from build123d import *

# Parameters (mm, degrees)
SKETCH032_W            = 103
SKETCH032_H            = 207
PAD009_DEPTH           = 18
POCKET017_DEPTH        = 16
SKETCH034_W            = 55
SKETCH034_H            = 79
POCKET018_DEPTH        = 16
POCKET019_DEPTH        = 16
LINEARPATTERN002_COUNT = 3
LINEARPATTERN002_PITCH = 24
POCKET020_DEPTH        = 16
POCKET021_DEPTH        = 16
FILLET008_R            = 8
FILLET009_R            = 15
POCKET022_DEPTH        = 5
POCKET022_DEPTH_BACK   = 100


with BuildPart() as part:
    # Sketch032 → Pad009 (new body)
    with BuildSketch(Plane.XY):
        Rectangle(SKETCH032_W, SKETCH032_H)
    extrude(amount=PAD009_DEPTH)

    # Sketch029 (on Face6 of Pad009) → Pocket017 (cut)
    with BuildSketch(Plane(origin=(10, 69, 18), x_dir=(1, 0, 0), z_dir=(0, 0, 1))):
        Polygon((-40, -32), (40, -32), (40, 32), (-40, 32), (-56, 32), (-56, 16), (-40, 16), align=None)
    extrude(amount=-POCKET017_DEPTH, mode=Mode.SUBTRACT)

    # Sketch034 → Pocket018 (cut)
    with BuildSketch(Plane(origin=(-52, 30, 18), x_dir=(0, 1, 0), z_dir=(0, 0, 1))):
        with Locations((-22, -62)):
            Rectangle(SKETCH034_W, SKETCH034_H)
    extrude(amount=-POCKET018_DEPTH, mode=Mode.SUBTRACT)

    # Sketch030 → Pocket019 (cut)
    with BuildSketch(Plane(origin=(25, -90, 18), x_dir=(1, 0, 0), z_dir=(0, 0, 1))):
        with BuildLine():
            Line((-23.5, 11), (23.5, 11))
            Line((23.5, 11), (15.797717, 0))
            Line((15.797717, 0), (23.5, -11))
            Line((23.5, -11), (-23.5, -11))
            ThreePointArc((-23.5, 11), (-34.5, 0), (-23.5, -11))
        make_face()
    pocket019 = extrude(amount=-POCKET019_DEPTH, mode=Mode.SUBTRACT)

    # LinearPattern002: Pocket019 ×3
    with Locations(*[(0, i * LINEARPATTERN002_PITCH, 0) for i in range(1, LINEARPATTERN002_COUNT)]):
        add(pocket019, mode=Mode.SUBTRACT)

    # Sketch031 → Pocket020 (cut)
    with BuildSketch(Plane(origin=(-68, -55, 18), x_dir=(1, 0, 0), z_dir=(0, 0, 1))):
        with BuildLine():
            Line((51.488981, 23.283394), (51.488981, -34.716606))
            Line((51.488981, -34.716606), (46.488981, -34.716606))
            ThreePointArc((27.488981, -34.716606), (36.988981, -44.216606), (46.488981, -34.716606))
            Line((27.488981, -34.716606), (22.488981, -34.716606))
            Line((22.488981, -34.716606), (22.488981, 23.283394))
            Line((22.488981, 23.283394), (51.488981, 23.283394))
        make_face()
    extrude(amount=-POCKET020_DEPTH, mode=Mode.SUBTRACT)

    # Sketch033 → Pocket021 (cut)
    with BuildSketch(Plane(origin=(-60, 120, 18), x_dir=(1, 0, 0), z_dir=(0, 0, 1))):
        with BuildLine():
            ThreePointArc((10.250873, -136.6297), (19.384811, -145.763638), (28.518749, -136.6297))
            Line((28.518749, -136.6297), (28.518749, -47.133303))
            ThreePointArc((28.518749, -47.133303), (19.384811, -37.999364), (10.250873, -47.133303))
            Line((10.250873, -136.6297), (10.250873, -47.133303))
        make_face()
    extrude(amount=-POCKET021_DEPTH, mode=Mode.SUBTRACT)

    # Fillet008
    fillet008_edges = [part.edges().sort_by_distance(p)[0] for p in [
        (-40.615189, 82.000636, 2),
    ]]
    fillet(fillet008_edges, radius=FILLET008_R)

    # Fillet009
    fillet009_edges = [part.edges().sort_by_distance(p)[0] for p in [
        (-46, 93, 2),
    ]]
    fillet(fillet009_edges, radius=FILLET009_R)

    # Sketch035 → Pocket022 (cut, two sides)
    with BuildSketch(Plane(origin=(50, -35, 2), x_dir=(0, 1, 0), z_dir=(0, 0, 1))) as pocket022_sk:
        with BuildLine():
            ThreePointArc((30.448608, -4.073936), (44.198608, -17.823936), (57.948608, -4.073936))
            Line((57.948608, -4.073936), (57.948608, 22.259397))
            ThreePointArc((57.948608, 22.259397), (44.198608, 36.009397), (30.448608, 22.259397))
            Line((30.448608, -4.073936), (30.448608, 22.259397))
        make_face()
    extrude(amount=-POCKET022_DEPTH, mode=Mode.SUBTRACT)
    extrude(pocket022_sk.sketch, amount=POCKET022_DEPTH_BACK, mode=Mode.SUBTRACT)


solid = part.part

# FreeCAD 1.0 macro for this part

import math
import FreeCAD as App
import Part
import Sketcher
Q = App.Units.Quantity


def edges_at(feature, points):
    """Names of the edges that pass closest to the given points."""
    edges = feature.Shape.Edges
    near = lambda p: min(range(len(edges)), key=lambda i: edges[i].distToShape(Part.Vertex(*p))[0])
    return sorted({f"Edge{near(p) + 1}" for p in points})


def add_polygon(sketch, points):
    """Adds a closed chain of lines whose ends are joined by coincident constraints."""
    first, n = sketch.GeometryCount, len(points)
    for a, b in zip(points, points[1:] + points[:1]):
        sketch.addGeometry(Part.LineSegment(App.Vector(*a, 0), App.Vector(*b, 0)), False)
    for i in range(n):
        sketch.addConstraint(Sketcher.Constraint("Coincident", first + i, 2, first + (i + 1) % n, 1))

doc = App.newDocument("Part")
params = doc.addObject("Spreadsheet::Sheet", "Params")
for row, (alias, value) in enumerate([
    ("sketch1_width", "103 mm"),
    ("sketch1_height", "207 mm"),
    ("pad1_length", "18 mm"),
    ("sketch2_width", "80 mm"),
    ("sketch2_width2", "96 mm"),
    ("sketch2_height", "64 mm"),
    ("pocket1_length", "16 mm"),
    ("sketch3_width", "79 mm"),
    ("sketch3_height", "55 mm"),
    ("pocket2_length", "16 mm"),
    ("sketch4_radius", "11 mm"),
    ("sketch4_width", "47 mm"),
    ("pocket3_length", "16 mm"),
    ("linearpattern_pitch", "24 mm"),
    ("sketch5_radius", "9.5 mm"),
    ("sketch5_width", "29 mm"),
    ("sketch5_height", "58 mm"),
    ("pocket4_length", "16 mm"),
    ("pocket5_length", "16 mm"),
    ("fillet_radius", "8 mm"),
    ("fillet2_radius", "15 mm"),
    ("sketch7_radius", "13.75 mm"),
], start=1):
    params.set(f"A{row}", alias)
    params.set(f"B{row}", "=" + value)
    params.setAlias(f"B{row}", alias)

body = doc.addObject("PartDesign::Body", "Body")

# Sketch on XY plane
sketch1 = body.newObject("Sketcher::SketchObject", "Sketch")
sketch1.AttachmentSupport = (doc.getObject("XY_Plane"), [""])
sketch1.MapMode = "FlatFace"
add_polygon(sketch1, [(-52, 104), (-52, -104), (52, -104), (52, 104)])  # lines 0-3
sketch1.addConstraint([
    Sketcher.Constraint("Vertical", 0),
    Sketcher.Constraint("Horizontal", 1),
    Sketcher.Constraint("Vertical", 2),
    Sketcher.Constraint("Horizontal", 3),
    Sketcher.Constraint("Symmetric", 0, 2, 2, 2, -1, 1),
    Sketcher.Constraint("DistanceX", 1, 1, 1, 2, Q("103 mm")),
    Sketcher.Constraint("DistanceY", 0, 2, 0, 1, Q("207 mm")),
])
sketch1.setExpression("Constraints[9]", "Params.sketch1_width")
sketch1.setExpression("Constraints[10]", "Params.sketch1_height")
pad1 = body.newObject("PartDesign::Pad", "Pad")
pad1.Profile = sketch1
pad1.setExpression("Length", "Params.pad1_length")

# Sketch on XY plane
sketch2 = body.newObject("Sketcher::SketchObject", "Sketch001")
sketch2.AttachmentSupport = (doc.getObject("XY_Plane"), [""])
sketch2.MapMode = "FlatFace"
sketch2.AttachmentOffset = App.Placement(App.Vector(0, 0, 18), App.Rotation())
add_polygon(sketch2, [(-30, 37), (50, 37), (50, 101), (-46, 101), (-46, 85), (-30, 85)])  # lines 0-5
sketch2.addConstraint([
    Sketcher.Constraint("Horizontal", 0),
    Sketcher.Constraint("Vertical", 1),
    Sketcher.Constraint("Horizontal", 2),
    Sketcher.Constraint("Vertical", 3),
    Sketcher.Constraint("Horizontal", 4),
    Sketcher.Constraint("Vertical", 5),
    Sketcher.Constraint("Equal", 4, 3),
    Sketcher.Constraint("DistanceX", 0, 1, 0, 2, Q("80 mm")),
    Sketcher.Constraint("DistanceX", 2, 2, 2, 1, Q("96 mm")),
    Sketcher.Constraint("DistanceY", 1, 1, 1, 2, Q("64 mm")),
    Sketcher.Constraint("DistanceX", -1, 1, 0, 2, Q("50 mm")),
    Sketcher.Constraint("DistanceY", -1, 1, 0, 2, Q("37 mm")),
])
sketch2.setExpression("Constraints[13]", "Params.sketch2_width")
sketch2.setExpression("Constraints[14]", "Params.sketch2_width2")
sketch2.setExpression("Constraints[15]", "Params.sketch2_height")
pocket1 = body.newObject("PartDesign::Pocket", "Pocket")
pocket1.Profile = sketch2
pocket1.setExpression("Length", "Params.pocket1_length")

# Sketch on XY plane
sketch3 = body.newObject("Sketcher::SketchObject", "Sketch002")
sketch3.AttachmentSupport = (doc.getObject("XY_Plane"), [""])
sketch3.MapMode = "FlatFace"
sketch3.AttachmentOffset = App.Placement(App.Vector(0, 0, 18), App.Rotation())
add_polygon(sketch3, [(-30, -20), (50, -20), (50, 36), (-30, 36)])  # lines 0-3
sketch3.addConstraint([
    Sketcher.Constraint("Horizontal", 0),
    Sketcher.Constraint("Vertical", 1),
    Sketcher.Constraint("Horizontal", 2),
    Sketcher.Constraint("Vertical", 3),
    Sketcher.Constraint("DistanceX", 0, 1, 0, 2, Q("79 mm")),
    Sketcher.Constraint("DistanceY", 1, 1, 1, 2, Q("55 mm")),
    Sketcher.Constraint("DistanceX", -1, 1, 0, 2, Q("49.5 mm")),
    Sketcher.Constraint("DistanceY", 0, 2, -1, 1, Q("19.5 mm")),
])
sketch3.setExpression("Constraints[8]", "Params.sketch3_width")
sketch3.setExpression("Constraints[9]", "Params.sketch3_height")
pocket2 = body.newObject("PartDesign::Pocket", "Pocket001")
pocket2.Profile = sketch3
pocket2.setExpression("Length", "Params.pocket2_length")

# Sketch on XY plane
sketch4 = body.newObject("Sketcher::SketchObject", "Sketch003")
sketch4.AttachmentSupport = (doc.getObject("XY_Plane"), [""])
sketch4.MapMode = "FlatFace"
sketch4.AttachmentOffset = App.Placement(App.Vector(0, 0, 18), App.Rotation())
sketch4.addGeometry([
    Part.LineSegment(App.Vector(48, -79, 0), App.Vector(2, -79, 0)),  # 0
    Part.ArcOfCircle(Part.Circle(App.Vector(2, -90, 0), App.Vector(0, 0, 1), 11), math.radians(90), math.radians(270)),  # 1
    Part.LineSegment(App.Vector(2, -101, 0), App.Vector(48, -101, 0)),  # 2
    Part.LineSegment(App.Vector(48, -101, 0), App.Vector(41, -90, 0)),  # 3
    Part.LineSegment(App.Vector(41, -90, 0), App.Vector(48, -79, 0)),  # 4
], False)
sketch4.addConstraint([
    Sketcher.Constraint("Tangent", 0, 2, 1, 1),
    Sketcher.Constraint("Tangent", 1, 2, 2, 1),
    Sketcher.Constraint("Coincident", 2, 2, 3, 1),
    Sketcher.Constraint("Coincident", 3, 2, 4, 1),
    Sketcher.Constraint("Coincident", 4, 2, 0, 1),
    Sketcher.Constraint("Horizontal", 0),
    Sketcher.Constraint("Horizontal", 2),
    Sketcher.Constraint("Horizontal", 1, 3, 3, 2),
    Sketcher.Constraint("Vertical", 2, 2, 4, 2),
    Sketcher.Constraint("Radius", 1, Q("11 mm")),
    Sketcher.Constraint("DistanceX", 0, 2, 0, 1, Q("47 mm")),
    Sketcher.Constraint("Angle", 3, Q("125 deg")),
    Sketcher.Constraint("DistanceY", 1, 3, -1, 1, Q("90 mm")),
    Sketcher.Constraint("DistanceX", -1, 1, 1, 3, Q("1.5 mm")),
])
sketch4.setExpression("Constraints[9]", "Params.sketch4_radius")
sketch4.setExpression("Constraints[10]", "Params.sketch4_width")
pocket3 = body.newObject("PartDesign::Pocket", "Pocket002")
pocket3.Profile = sketch4
pocket3.setExpression("Length", "Params.pocket3_length")
doc.recompute()

linearpattern = body.newObject("PartDesign::LinearPattern", "LinearPattern")
linearpattern.Originals = [pocket3]
linearpattern.Direction = (doc.getObject("Y_Axis"), [""])
linearpattern.Mode = "offset"
linearpattern.setExpression("Offset", "Params.linearpattern_pitch")
linearpattern.Occurrences = 3
body.Tip = linearpattern

# Sketch on XY plane
sketch5 = body.newObject("Sketcher::SketchObject", "Sketch004")
sketch5.AttachmentSupport = (doc.getObject("XY_Plane"), [""])
sketch5.MapMode = "FlatFace"
sketch5.AttachmentOffset = App.Placement(App.Vector(0, 0, 18), App.Rotation())
sketch5.addGeometry([
    Part.LineSegment(App.Vector(-17, -90, 0), App.Vector(-17, -32, 0)),  # 0
    Part.LineSegment(App.Vector(-17, -32, 0), App.Vector(-46, -32, 0)),  # 1
    Part.LineSegment(App.Vector(-46, -32, 0), App.Vector(-46, -90, 0)),  # 2
    Part.LineSegment(App.Vector(-46, -90, 0), App.Vector(-41, -90, 0)),  # 3
    Part.ArcOfCircle(Part.Circle(App.Vector(-31, -90, 0), App.Vector(0, 0, 1), 10), math.radians(180), math.radians(360)),  # 4
    Part.LineSegment(App.Vector(-22, -90, 0), App.Vector(-17, -90, 0)),  # 5
], False)
sketch5.addConstraint([
    Sketcher.Constraint("Coincident", 0, 2, 1, 1),
    Sketcher.Constraint("Coincident", 1, 2, 2, 1),
    Sketcher.Constraint("Coincident", 2, 2, 3, 1),
    Sketcher.Constraint("Coincident", 3, 2, 4, 1),
    Sketcher.Constraint("Coincident", 4, 2, 5, 1),
    Sketcher.Constraint("Coincident", 5, 2, 0, 1),
    Sketcher.Constraint("Vertical", 0),
    Sketcher.Constraint("Horizontal", 1),
    Sketcher.Constraint("Vertical", 2),
    Sketcher.Constraint("Horizontal", 3),
    Sketcher.Constraint("Horizontal", 5),
    Sketcher.Constraint("Horizontal", 4, 3, 2, 2),
    Sketcher.Constraint("Horizontal", 3, 2, 4, 2),
    Sketcher.Constraint("Equal", 3, 5),
    Sketcher.Constraint("Radius", 4, Q("9.5 mm")),
    Sketcher.Constraint("DistanceX", 1, 2, 1, 1, Q("29 mm")),
    Sketcher.Constraint("DistanceY", 0, 1, 0, 2, Q("58 mm")),
    Sketcher.Constraint("DistanceX", 4, 3, -1, 1, Q("31.011019 mm")),
    Sketcher.Constraint("DistanceY", 4, 3, -1, 1, Q("89.716606 mm")),
])
sketch5.setExpression("Constraints[14]", "Params.sketch5_radius")
sketch5.setExpression("Constraints[15]", "Params.sketch5_width")
sketch5.setExpression("Constraints[16]", "Params.sketch5_height")
pocket4 = body.newObject("PartDesign::Pocket", "Pocket003")
pocket4.Profile = sketch5
pocket4.setExpression("Length", "Params.pocket4_length")

# Sketch on XY plane
sketch6 = body.newObject("Sketcher::SketchObject", "Sketch005")
sketch6.AttachmentSupport = (doc.getObject("XY_Plane"), [""])
sketch6.MapMode = "FlatFace"
sketch6.AttachmentOffset = App.Placement(App.Vector(0, 0, 18), App.Rotation())
sketch6.addGeometry([
    Part.ArcOfCircle(Part.Circle(App.Vector(-41, -17, 0), App.Vector(0, 0, 1), 9), math.radians(180), math.radians(360)),
    Part.LineSegment(App.Vector(-31, -17, 0), App.Vector(-31, 73, 0)),
    Part.ArcOfCircle(Part.Circle(App.Vector(-41, 73, 0), App.Vector(0, 0, 1), 9), math.radians(0), math.radians(180)),
    Part.LineSegment(App.Vector(-50, 73, 0), App.Vector(-50, -17, 0)),
], False)
sketch6.addConstraint([
    Sketcher.Constraint("Tangent", 0, 2, 1, 1),
    Sketcher.Constraint("Tangent", 1, 2, 2, 1),
    Sketcher.Constraint("Tangent", 2, 2, 3, 1),
    Sketcher.Constraint("Tangent", 3, 2, 0, 1),
    Sketcher.Constraint("Vertical", 1),
    Sketcher.Constraint("Vertical", 3),
    Sketcher.Constraint("Radius", 0, Q("9.133938 mm")),
    Sketcher.Constraint("DistanceY", 0, 3, -1, 1, Q("16.6297 mm")),
    Sketcher.Constraint("DistanceY", -1, 1, 2, 3, Q("72.866698 mm")),
    Sketcher.Constraint("DistanceX", 0, 3, -1, 1, Q("40.615189 mm")),
])
pocket5 = body.newObject("PartDesign::Pocket", "Pocket004")
pocket5.Profile = sketch6
pocket5.setExpression("Length", "Params.pocket5_length")
doc.recompute()

fillet = body.newObject("PartDesign::Fillet", "Fillet")
fillet.Base = (pocket5, edges_at(pocket5, [(-40.615, 82.001, 2)]))
fillet.setExpression("Radius", "Params.fillet_radius")
doc.recompute()

fillet2 = body.newObject("PartDesign::Fillet", "Fillet001")
fillet2.Base = (fillet, edges_at(fillet, [(-46, 93, 2)]))
fillet2.setExpression("Radius", "Params.fillet2_radius")

# Sketch on XY plane
sketch7 = body.newObject("Sketcher::SketchObject", "Sketch006")
sketch7.AttachmentSupport = (doc.getObject("XY_Plane"), [""])
sketch7.MapMode = "FlatFace"
sketch7.AttachmentOffset = App.Placement(App.Vector(0, 0, 2), App.Rotation())
sketch7.addGeometry([
    Part.ArcOfCircle(Part.Circle(App.Vector(54, 9, 0), App.Vector(0, 0, 1), 14), math.radians(-90), math.radians(90)),
    Part.LineSegment(App.Vector(54, 23, 0), App.Vector(28, 23, 0)),
    Part.ArcOfCircle(Part.Circle(App.Vector(28, 9, 0), App.Vector(0, 0, 1), 14), math.radians(90), math.radians(270)),
    Part.LineSegment(App.Vector(28, -5, 0), App.Vector(54, -5, 0)),
], False)
sketch7.addConstraint([
    Sketcher.Constraint("Tangent", 0, 2, 1, 1),
    Sketcher.Constraint("Tangent", 1, 2, 2, 1),
    Sketcher.Constraint("Tangent", 2, 2, 3, 1),
    Sketcher.Constraint("Tangent", 3, 2, 0, 1),
    Sketcher.Constraint("Horizontal", 1),
    Sketcher.Constraint("Horizontal", 3),
    Sketcher.Constraint("Radius", 0, Q("13.75 mm")),
    Sketcher.Constraint("DistanceX", 1, 2, 1, 1, Q("26.333333 mm")),
    Sketcher.Constraint("DistanceY", -1, 1, 0, 2, Q("22.948608 mm")),
    Sketcher.Constraint("DistanceX", -1, 1, 0, 3, Q("54.073936 mm")),
])
sketch7.setExpression("Constraints[6]", "Params.sketch7_radius")
pocket6 = body.newObject("PartDesign::Pocket", "Pocket005")
pocket6.Profile = sketch7
pocket6.Type = "ThroughAll"
pocket6.Midplane = True

doc.recompute()
